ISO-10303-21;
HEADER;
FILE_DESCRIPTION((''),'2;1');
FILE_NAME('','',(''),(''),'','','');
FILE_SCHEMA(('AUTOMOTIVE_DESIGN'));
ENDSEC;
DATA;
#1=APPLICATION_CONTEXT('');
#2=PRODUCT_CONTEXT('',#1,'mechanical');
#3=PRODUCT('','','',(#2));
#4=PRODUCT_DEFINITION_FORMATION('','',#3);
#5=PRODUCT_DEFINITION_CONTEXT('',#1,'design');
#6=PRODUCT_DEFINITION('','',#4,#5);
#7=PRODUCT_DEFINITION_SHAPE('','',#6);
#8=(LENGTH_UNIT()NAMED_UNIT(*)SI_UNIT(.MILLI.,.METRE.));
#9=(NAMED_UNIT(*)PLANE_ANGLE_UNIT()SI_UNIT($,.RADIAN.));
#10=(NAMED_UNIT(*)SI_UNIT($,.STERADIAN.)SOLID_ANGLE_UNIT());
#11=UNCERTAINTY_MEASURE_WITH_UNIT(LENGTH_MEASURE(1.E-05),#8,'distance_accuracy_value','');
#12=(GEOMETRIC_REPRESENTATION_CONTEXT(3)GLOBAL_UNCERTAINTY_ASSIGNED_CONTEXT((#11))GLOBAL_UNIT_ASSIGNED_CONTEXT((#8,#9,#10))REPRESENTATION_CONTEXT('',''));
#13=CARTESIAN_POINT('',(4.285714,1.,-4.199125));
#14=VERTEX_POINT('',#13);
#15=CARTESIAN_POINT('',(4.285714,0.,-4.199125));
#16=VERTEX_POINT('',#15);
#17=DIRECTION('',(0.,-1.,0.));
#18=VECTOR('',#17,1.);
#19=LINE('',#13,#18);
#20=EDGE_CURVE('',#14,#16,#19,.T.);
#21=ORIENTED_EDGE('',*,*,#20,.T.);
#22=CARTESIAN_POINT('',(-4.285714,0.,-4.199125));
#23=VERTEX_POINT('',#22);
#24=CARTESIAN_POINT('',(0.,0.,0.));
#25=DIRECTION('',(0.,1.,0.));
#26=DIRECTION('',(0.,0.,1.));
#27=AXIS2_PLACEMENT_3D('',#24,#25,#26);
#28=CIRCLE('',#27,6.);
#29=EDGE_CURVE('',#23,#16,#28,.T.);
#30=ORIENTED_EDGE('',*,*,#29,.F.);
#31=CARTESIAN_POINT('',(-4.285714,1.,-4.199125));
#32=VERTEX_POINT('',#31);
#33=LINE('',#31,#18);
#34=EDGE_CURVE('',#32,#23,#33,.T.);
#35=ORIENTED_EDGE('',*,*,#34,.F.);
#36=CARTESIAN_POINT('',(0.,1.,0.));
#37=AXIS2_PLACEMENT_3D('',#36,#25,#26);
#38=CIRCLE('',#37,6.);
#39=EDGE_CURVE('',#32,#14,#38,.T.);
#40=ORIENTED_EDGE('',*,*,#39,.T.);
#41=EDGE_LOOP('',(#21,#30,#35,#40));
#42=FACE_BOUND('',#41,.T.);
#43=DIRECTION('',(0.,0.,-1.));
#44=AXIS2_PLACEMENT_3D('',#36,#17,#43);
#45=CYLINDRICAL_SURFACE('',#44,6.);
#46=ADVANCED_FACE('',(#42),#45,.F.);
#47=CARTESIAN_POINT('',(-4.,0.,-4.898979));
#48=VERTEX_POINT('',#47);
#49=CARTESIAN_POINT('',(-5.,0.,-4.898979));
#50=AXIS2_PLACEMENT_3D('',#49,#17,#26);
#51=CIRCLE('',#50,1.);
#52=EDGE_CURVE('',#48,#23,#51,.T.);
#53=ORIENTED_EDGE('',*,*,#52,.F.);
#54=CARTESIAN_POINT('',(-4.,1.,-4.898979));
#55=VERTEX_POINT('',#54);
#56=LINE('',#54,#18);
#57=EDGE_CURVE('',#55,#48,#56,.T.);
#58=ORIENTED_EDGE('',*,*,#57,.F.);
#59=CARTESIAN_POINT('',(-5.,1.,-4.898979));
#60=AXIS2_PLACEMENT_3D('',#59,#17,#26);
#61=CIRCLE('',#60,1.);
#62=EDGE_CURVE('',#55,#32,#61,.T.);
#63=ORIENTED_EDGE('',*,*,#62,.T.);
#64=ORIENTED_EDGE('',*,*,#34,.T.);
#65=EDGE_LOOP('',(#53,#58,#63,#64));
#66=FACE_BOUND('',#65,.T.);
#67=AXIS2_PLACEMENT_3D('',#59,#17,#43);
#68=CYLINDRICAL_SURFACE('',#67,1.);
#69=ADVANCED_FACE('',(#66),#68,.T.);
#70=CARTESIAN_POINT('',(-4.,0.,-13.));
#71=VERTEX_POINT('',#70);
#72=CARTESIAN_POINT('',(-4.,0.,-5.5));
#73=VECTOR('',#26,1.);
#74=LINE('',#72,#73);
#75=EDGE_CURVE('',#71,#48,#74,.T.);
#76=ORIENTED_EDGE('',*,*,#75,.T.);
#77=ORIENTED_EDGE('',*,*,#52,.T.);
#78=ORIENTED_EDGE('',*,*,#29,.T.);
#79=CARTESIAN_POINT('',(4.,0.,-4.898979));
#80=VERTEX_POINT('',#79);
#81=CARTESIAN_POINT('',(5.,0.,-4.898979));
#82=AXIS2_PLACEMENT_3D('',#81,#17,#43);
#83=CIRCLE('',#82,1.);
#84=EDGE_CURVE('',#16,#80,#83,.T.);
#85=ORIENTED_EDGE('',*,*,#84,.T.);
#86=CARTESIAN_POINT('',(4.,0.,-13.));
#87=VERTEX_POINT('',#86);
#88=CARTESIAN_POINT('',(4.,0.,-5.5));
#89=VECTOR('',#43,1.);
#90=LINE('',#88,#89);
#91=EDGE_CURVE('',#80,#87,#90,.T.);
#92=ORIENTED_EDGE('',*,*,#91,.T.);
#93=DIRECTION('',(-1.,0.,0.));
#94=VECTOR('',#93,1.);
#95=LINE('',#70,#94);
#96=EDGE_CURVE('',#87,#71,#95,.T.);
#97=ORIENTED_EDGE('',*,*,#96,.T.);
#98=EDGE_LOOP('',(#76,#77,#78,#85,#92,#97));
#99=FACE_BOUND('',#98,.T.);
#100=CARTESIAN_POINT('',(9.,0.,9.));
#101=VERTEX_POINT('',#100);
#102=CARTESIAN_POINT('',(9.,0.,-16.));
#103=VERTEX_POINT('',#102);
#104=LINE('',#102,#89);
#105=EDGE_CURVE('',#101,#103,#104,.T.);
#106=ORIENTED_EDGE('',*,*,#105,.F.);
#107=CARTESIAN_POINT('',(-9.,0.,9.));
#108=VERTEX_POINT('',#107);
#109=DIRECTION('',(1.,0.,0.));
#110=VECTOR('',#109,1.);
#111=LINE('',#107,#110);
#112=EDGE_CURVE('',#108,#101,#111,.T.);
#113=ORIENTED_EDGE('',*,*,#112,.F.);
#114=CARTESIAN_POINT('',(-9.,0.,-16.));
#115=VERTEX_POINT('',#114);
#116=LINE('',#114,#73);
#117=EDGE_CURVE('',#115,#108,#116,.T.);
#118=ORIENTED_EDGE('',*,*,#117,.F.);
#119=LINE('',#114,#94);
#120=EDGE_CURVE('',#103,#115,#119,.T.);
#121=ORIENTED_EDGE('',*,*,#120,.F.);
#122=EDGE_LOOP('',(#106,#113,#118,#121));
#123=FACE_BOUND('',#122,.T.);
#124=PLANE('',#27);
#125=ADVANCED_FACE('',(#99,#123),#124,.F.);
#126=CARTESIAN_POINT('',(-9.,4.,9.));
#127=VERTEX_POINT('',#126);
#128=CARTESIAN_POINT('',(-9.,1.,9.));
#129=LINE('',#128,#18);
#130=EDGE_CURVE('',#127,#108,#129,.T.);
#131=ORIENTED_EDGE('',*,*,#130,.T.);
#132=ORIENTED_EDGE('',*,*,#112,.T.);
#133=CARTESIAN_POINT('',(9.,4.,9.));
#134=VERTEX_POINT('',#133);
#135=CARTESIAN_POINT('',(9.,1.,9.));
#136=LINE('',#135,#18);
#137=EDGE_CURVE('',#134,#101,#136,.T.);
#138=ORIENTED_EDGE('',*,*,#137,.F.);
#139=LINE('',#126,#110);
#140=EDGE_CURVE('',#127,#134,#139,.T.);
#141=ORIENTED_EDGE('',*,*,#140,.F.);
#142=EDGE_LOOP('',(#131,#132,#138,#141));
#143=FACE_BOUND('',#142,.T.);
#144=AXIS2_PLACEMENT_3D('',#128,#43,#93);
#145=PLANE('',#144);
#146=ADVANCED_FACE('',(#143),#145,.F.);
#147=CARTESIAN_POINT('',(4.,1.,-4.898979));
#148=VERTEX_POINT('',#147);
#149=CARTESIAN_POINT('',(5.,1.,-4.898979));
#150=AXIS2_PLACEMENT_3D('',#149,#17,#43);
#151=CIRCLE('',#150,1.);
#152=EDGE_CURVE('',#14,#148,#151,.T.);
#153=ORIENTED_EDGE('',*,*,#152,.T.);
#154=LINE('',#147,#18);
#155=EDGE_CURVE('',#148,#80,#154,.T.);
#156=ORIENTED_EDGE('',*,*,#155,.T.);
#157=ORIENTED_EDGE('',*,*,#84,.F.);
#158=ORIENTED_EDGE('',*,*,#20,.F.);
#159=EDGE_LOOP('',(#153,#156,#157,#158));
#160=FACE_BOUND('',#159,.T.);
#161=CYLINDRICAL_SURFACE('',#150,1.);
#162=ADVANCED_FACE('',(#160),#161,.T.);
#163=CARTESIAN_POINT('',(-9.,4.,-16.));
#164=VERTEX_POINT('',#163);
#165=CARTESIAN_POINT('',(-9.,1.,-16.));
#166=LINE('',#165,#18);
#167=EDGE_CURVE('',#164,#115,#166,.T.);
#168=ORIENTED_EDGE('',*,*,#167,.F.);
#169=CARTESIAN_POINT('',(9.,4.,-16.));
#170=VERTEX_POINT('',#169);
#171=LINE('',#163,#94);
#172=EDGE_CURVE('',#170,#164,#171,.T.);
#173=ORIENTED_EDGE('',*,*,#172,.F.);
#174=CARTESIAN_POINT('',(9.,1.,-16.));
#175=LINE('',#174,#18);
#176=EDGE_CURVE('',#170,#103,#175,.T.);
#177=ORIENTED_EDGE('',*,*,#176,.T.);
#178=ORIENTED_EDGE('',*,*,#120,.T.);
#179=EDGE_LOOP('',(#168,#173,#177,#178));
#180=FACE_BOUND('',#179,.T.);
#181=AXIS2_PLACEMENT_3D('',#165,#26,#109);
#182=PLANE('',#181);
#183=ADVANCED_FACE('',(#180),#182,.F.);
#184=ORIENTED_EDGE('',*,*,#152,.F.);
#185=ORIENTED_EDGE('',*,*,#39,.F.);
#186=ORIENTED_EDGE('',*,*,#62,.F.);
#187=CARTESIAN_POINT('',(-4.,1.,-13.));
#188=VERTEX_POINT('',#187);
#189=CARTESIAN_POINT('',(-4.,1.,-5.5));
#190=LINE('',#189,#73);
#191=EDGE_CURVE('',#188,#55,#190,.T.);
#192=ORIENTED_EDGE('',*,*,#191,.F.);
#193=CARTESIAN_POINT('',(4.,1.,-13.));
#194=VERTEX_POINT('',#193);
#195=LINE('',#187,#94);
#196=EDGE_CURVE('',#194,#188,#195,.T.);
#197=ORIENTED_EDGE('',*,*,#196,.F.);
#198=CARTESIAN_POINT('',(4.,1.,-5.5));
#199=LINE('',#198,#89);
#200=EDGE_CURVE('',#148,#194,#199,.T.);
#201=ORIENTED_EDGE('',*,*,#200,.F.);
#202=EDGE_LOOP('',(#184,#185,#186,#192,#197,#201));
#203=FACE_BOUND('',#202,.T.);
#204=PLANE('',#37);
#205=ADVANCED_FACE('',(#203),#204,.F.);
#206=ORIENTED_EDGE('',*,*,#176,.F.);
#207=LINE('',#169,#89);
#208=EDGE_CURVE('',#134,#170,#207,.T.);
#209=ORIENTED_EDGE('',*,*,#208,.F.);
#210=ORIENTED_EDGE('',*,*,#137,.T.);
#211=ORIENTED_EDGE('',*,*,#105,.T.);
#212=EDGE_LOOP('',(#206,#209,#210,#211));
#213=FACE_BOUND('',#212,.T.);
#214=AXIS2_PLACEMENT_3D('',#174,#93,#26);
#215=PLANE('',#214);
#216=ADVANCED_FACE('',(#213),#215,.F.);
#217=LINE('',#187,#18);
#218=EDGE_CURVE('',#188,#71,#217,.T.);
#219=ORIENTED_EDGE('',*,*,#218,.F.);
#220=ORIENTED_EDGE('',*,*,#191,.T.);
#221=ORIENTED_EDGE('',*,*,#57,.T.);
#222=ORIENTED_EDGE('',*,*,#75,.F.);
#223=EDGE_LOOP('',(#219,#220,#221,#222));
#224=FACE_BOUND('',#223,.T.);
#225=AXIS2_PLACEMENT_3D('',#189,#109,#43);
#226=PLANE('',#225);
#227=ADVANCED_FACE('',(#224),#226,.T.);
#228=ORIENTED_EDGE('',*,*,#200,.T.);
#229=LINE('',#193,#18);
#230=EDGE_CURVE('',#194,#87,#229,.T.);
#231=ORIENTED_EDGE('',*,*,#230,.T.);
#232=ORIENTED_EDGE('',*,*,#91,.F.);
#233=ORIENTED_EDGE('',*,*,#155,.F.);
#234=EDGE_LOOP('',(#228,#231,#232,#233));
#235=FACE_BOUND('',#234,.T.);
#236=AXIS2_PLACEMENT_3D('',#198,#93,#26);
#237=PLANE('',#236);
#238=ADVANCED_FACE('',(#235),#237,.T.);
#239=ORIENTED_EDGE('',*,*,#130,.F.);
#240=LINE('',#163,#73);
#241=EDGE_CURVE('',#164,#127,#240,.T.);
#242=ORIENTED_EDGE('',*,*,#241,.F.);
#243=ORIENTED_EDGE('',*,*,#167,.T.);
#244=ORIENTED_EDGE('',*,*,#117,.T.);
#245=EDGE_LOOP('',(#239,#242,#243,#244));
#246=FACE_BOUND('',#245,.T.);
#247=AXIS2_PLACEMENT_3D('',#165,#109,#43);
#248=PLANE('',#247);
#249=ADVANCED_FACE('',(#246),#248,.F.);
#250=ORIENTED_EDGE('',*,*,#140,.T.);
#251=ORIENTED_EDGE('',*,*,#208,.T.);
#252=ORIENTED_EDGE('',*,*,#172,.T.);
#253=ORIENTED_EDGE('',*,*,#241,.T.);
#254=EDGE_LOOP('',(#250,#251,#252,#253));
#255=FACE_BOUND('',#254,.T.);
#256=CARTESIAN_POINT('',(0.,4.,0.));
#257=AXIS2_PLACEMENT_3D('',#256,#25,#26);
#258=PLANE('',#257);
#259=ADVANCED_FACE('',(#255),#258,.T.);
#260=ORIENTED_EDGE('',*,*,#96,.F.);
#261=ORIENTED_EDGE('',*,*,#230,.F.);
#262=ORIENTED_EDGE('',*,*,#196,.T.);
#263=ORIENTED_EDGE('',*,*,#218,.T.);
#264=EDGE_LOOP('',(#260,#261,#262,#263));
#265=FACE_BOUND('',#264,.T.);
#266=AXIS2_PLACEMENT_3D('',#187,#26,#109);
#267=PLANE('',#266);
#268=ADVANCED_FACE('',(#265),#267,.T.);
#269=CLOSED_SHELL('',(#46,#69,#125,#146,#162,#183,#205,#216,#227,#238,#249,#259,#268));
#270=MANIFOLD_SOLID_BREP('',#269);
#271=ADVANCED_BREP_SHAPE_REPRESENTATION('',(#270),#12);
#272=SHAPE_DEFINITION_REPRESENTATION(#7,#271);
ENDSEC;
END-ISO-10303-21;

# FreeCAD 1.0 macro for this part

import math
import FreeCAD as App
import Part
import Sketcher

doc = App.newDocument("Part")
body = doc.addObject("PartDesign::Body", "Body")

# Sketch on XZ plane
sketch1 = doc.addObject("Sketcher::SketchObject", "Sketch")
body.addObject(sketch1)
sketch1.AttachmentSupport = (doc.XZ_Plane, [""])
sketch1.MapMode = "FlatFace"
sketch1.addGeometry(Part.LineSegment(App.Vector(-9, -16, 0), App.Vector(-9, 9, 0)), False)
sketch1.addGeometry(Part.LineSegment(App.Vector(-9, 9, 0), App.Vector(9, 9, 0)), False)
sketch1.addGeometry(Part.LineSegment(App.Vector(9, 9, 0), App.Vector(9, -16, 0)), False)
sketch1.addGeometry(Part.LineSegment(App.Vector(9, -16, 0), App.Vector(-9, -16, 0)), False)
sketch1.addGeometry(Part.LineSegment(App.Vector(-4, -4.898979, 0), App.Vector(-4, -13, 0)), False)
sketch1.addGeometry(Part.LineSegment(App.Vector(-4, -13, 0), App.Vector(4, -13, 0)), False)
sketch1.addGeometry(Part.LineSegment(App.Vector(4, -13, 0), App.Vector(4, -4.898979, 0)), False)
sketch1.addGeometry(Part.ArcOfCircle(Part.Circle(App.Vector(5, -4.898979, 0), App.Vector(0, 0, 1), 1), math.radians(135.584691), math.radians(180)), False)
sketch1.addGeometry(Part.ArcOfCircle(Part.Circle(App.Vector(0, 0, 0), App.Vector(0, 0, 1), 6), math.radians(-44.415309), math.radians(224.415309)), False)
sketch1.addGeometry(Part.ArcOfCircle(Part.Circle(App.Vector(-5, -4.898979, 0), App.Vector(0, 0, 1), 1), math.radians(0), math.radians(44.415309)), False)
sketch1.addConstraint(Sketcher.Constraint("Coincident", 0, 2, 1, 1))
sketch1.addConstraint(Sketcher.Constraint("Coincident", 1, 2, 2, 1))
sketch1.addConstraint(Sketcher.Constraint("Coincident", 2, 2, 3, 1))
sketch1.addConstraint(Sketcher.Constraint("Coincident", 3, 2, 0, 1))
sketch1.addConstraint(Sketcher.Constraint("Coincident", 4, 2, 5, 1))
sketch1.addConstraint(Sketcher.Constraint("Coincident", 5, 2, 6, 1))
sketch1.addConstraint(Sketcher.Constraint("Tangent", 6, 2, 7, 2))
sketch1.addConstraint(Sketcher.Constraint("Tangent", 7, 1, 8, 1))
sketch1.addConstraint(Sketcher.Constraint("Tangent", 8, 2, 9, 2))
sketch1.addConstraint(Sketcher.Constraint("Tangent", 9, 1, 4, 1))
sketch1.addConstraint(Sketcher.Constraint("Vertical", 0))
sketch1.addConstraint(Sketcher.Constraint("Horizontal", 1))
sketch1.addConstraint(Sketcher.Constraint("Vertical", 2))
sketch1.addConstraint(Sketcher.Constraint("Horizontal", 3))
sketch1.addConstraint(Sketcher.Constraint("Vertical", 4))
sketch1.addConstraint(Sketcher.Constraint("Horizontal", 5))
sketch1.addConstraint(Sketcher.Constraint("Vertical", 6))
sketch1.addConstraint(Sketcher.Constraint("Coincident", 8, 3, -1, 1))
sketch1.addConstraint(Sketcher.Constraint("Equal", 7, 9))
sketch1.addConstraint(Sketcher.Constraint("Horizontal", 7, 3, 9, 3))
sketch1.addConstraint(Sketcher.Constraint("Radius", 7, 1.0))
sketch1.addConstraint(Sketcher.Constraint("Radius", 8, 6.0))
sketch1.addConstraint(Sketcher.Constraint("DistanceX", 1, 1, 1, 2, 18.0))
sketch1.addConstraint(Sketcher.Constraint("DistanceX", 5, 1, 5, 2, 8.0))
sketch1.addConstraint(Sketcher.Constraint("DistanceY", 0, 1, 0, 2, 25.0))
sketch1.addConstraint(Sketcher.Constraint("DistanceX", 0, 2, -1, 1, 9.0))
sketch1.addConstraint(Sketcher.Constraint("DistanceY", -1, 1, 0, 2, 9.0))
sketch1.addConstraint(Sketcher.Constraint("DistanceY", 4, 2, -1, 1, 13.0))
pad1 = doc.addObject("PartDesign::Pad", "Pad")
body.addObject(pad1)
pad1.Profile = sketch1
pad1.Length = 1
pad1.Reversed = True

# Sketch on XZ plane
sketch2 = doc.addObject("Sketcher::SketchObject", "Sketch001")
body.addObject(sketch2)
sketch2.AttachmentSupport = (doc.XZ_Plane, [""])
sketch2.MapMode = "FlatFace"
sketch2.AttachmentOffset = App.Placement(App.Vector(0, 0, -1), App.Rotation())
sketch2.addGeometry(Part.LineSegment(App.Vector(-9, -16, 0), App.Vector(-9, 9, 0)), False)
sketch2.addGeometry(Part.LineSegment(App.Vector(-9, 9, 0), App.Vector(9, 9, 0)), False)
sketch2.addGeometry(Part.LineSegment(App.Vector(9, 9, 0), App.Vector(9, -16, 0)), False)
sketch2.addGeometry(Part.LineSegment(App.Vector(9, -16, 0), App.Vector(-9, -16, 0)), False)
sketch2.addConstraint(Sketcher.Constraint("Coincident", 0, 2, 1, 1))
sketch2.addConstraint(Sketcher.Constraint("Coincident", 1, 2, 2, 1))
sketch2.addConstraint(Sketcher.Constraint("Coincident", 2, 2, 3, 1))
sketch2.addConstraint(Sketcher.Constraint("Coincident", 3, 2, 0, 1))
sketch2.addConstraint(Sketcher.Constraint("Vertical", 0))
sketch2.addConstraint(Sketcher.Constraint("Horizontal", 1))
sketch2.addConstraint(Sketcher.Constraint("Vertical", 2))
sketch2.addConstraint(Sketcher.Constraint("Horizontal", 3))
sketch2.addConstraint(Sketcher.Constraint("DistanceX", 1, 1, 1, 2, 18.0))
sketch2.addConstraint(Sketcher.Constraint("DistanceY", 0, 1, 0, 2, 25.0))
sketch2.addConstraint(Sketcher.Constraint("DistanceX", 0, 2, -1, 1, 9.0))
sketch2.addConstraint(Sketcher.Constraint("DistanceY", -1, 1, 0, 2, 9.0))
pad2 = doc.addObject("PartDesign::Pad", "Pad001")
body.addObject(pad2)
pad2.Profile = sketch2
pad2.Length = 3
pad2.Reversed = True

doc.recompute()
